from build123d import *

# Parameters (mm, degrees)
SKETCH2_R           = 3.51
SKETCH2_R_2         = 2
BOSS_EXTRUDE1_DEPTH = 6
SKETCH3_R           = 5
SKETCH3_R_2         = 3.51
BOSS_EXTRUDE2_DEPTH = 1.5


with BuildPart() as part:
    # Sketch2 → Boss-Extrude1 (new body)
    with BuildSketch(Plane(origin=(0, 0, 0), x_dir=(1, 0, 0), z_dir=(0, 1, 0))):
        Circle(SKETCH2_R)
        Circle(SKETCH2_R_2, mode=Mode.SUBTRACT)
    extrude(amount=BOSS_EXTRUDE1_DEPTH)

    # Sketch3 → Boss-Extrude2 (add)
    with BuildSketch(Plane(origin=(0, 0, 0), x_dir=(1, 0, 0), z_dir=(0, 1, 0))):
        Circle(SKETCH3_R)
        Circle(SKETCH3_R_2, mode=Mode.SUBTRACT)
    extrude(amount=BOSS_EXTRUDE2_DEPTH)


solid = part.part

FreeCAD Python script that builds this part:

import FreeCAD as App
import Part
import Sketcher

V = App.Vector
Q = App.Units.Quantity

doc = App.newDocument("Part")
params = doc.addObject("Spreadsheet::Sheet", "Params")
for row, (alias, value) in enumerate([
    ("sketch1_diameter", "4 mm"),
    ("sketch1_diameter2", "7.02 mm"),
    ("pad1_length", "6 mm"),
    ("sketch2_diameter", "10 mm"),
    ("sketch2_diameter2", "7.02 mm"),
    ("pad2_length", "1.5 mm"),
], start=1):
    params.set(f"A{row}", alias)
    params.set(f"B{row}", "=" + value)
    params.setAlias(f"B{row}", alias)

body = doc.addObject("PartDesign::Body", "Body")

# Sketch on XZ plane
sketch1 = body.newObject("Sketcher::SketchObject", "Sketch")
sketch1.AttachmentSupport = (doc.getObject("XZ_Plane"), [""])
sketch1.MapMode = "FlatFace"
sketch1.addGeometry([
    Part.Circle(V(0, 0, 0), V(0, 0, 1), 3.5),
    Part.Circle(V(0, 0, 0), V(0, 0, 1), 2),
], False)
sketch1.addConstraint([
    Sketcher.Constraint("Coincident", 0, 3, -1, 1),
    Sketcher.Constraint("Coincident", 1, 3, -1, 1),
    Sketcher.Constraint("Diameter", 1, Q("4 mm")),
    Sketcher.Constraint("Diameter", 0, Q("7.02 mm")),
])
sketch1.setExpression("Constraints[2]", "Params.sketch1_diameter")
sketch1.setExpression("Constraints[3]", "Params.sketch1_diameter2")
pad1 = body.newObject("PartDesign::Pad", "Pad")
pad1.Profile = sketch1
pad1.setExpression("Length", "Params.pad1_length")
pad1.Reversed = True

# Sketch on XZ plane
sketch2 = body.newObject("Sketcher::SketchObject", "Sketch001")
sketch2.AttachmentSupport = (doc.getObject("XZ_Plane"), [""])
sketch2.MapMode = "FlatFace"
sketch2.addGeometry([
    Part.Circle(V(0, 0, 0), V(0, 0, 1), 5),
    Part.Circle(V(0, 0, 0), V(0, 0, 1), 3.5),
], False)
sketch2.addConstraint([
    Sketcher.Constraint("Coincident", 0, 3, -1, 1),
    Sketcher.Constraint("Coincident", 1, 3, -1, 1),
    Sketcher.Constraint("Diameter", 0, Q("10 mm")),
    Sketcher.Constraint("Diameter", 1, Q("7.02 mm")),
])
sketch2.setExpression("Constraints[2]", "Params.sketch2_diameter")
sketch2.setExpression("Constraints[3]", "Params.sketch2_diameter2")
pad2 = body.newObject("PartDesign::Pad", "Pad001")
pad2.Profile = sketch2
pad2.setExpression("Length", "Params.pad2_length")
pad2.Reversed = True

doc.recompute()
